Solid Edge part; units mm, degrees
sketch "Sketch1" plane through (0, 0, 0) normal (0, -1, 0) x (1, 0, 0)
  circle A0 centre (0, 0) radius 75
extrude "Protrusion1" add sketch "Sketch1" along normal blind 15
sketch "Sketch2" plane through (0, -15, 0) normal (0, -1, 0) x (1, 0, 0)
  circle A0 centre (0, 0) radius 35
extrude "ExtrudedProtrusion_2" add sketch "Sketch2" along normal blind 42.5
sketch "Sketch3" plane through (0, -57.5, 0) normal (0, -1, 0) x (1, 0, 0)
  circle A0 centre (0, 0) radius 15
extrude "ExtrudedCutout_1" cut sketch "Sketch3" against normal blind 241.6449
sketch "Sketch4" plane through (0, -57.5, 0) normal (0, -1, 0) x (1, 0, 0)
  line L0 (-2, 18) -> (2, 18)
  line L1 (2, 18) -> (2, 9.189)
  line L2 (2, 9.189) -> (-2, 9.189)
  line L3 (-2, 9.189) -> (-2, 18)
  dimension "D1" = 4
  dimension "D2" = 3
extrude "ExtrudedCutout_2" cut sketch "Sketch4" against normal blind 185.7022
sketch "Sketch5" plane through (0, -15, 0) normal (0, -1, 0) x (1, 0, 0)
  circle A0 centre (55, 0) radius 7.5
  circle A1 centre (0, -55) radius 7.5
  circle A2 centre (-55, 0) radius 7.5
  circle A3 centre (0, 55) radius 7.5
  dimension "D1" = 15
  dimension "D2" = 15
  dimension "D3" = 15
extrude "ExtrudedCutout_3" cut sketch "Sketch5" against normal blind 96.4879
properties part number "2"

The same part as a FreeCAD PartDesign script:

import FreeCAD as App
import Part
import Sketcher

V = App.Vector
Q = App.Units.Quantity


def add_polygon(sketch, points):
    """Adds a closed chain of lines whose ends are joined by coincident constraints."""
    first, n = sketch.GeometryCount, len(points)
    for a, b in zip(points, points[1:] + points[:1]):
        sketch.addGeometry(Part.LineSegment(App.Vector(*a, 0), App.Vector(*b, 0)), False)
    for i in range(n):
        sketch.addConstraint(Sketcher.Constraint("Coincident", first + i, 2, first + (i + 1) % n, 1))

doc = App.newDocument("Part")
params = doc.addObject("Spreadsheet::Sheet", "Params")
for row, (alias, value) in enumerate([
    ("sketch1_diameter", "150 mm"),
    ("pad1_length", "15 mm"),
    ("sketch2_diameter", "70 mm"),
    ("pad2_length", "42.5 mm"),
    ("sketch3_diameter", "30 mm"),
    ("pocket1_length", "241.6449 mm"),
    ("pocket2_length", "185.7022 mm"),
    ("sketch5_diameter", "15 mm"),
    ("pocket3_length", "96.4879 mm"),
], start=1):
    params.set(f"A{row}", alias)
    params.set(f"B{row}", "=" + value)
    params.setAlias(f"B{row}", alias)

body = doc.addObject("PartDesign::Body", "Body")

# Sketch on XZ plane
sketch1 = doc.addObject("Sketcher::SketchObject", "Sketch")
body.addObject(sketch1)
sketch1.AttachmentSupport = (doc.XZ_Plane, [""])
sketch1.MapMode = "FlatFace"
sketch1.addGeometry(Part.Circle(V(0, 0, 0), V(0, 0, 1), 75), False)
sketch1.addConstraint([
    Sketcher.Constraint("Coincident", 0, 3, -1, 1),
    Sketcher.Constraint("Diameter", 0, Q("150 mm")),
])
sketch1.setExpression("Constraints[1]", "Params.sketch1_diameter")
pad1 = doc.addObject("PartDesign::Pad", "Pad")
body.addObject(pad1)
pad1.Profile = sketch1
pad1.setExpression("Length", "Params.pad1_length")

# Sketch on XZ plane
sketch2 = doc.addObject("Sketcher::SketchObject", "Sketch001")
body.addObject(sketch2)
sketch2.AttachmentSupport = (doc.XZ_Plane, [""])
sketch2.MapMode = "FlatFace"
sketch2.AttachmentOffset = App.Placement(V(0, 0, 15), App.Rotation())
sketch2.addGeometry(Part.Circle(V(0, 0, 0), V(0, 0, 1), 35), False)
sketch2.addConstraint([
    Sketcher.Constraint("Coincident", 0, 3, -1, 1),
    Sketcher.Constraint("Diameter", 0, Q("70 mm")),
])
sketch2.setExpression("Constraints[1]", "Params.sketch2_diameter")
pad2 = doc.addObject("PartDesign::Pad", "Pad001")
body.addObject(pad2)
pad2.Profile = sketch2
pad2.setExpression("Length", "Params.pad2_length")

# Sketch on XZ plane
sketch3 = doc.addObject("Sketcher::SketchObject", "Sketch002")
body.addObject(sketch3)
sketch3.AttachmentSupport = (doc.XZ_Plane, [""])
sketch3.MapMode = "FlatFace"
sketch3.AttachmentOffset = App.Placement(V(0, 0, 57.5), App.Rotation())
sketch3.addGeometry(Part.Circle(V(0, 0, 0), V(0, 0, 1), 15), False)
sketch3.addConstraint([
    Sketcher.Constraint("Coincident", 0, 3, -1, 1),
    Sketcher.Constraint("Diameter", 0, Q("30 mm")),
])
sketch3.setExpression("Constraints[1]", "Params.sketch3_diameter")
pocket1 = doc.addObject("PartDesign::Pocket", "Pocket")
body.addObject(pocket1)
pocket1.Profile = sketch3
pocket1.setExpression("Length", "Params.pocket1_length")

# Sketch on XZ plane
sketch4 = doc.addObject("Sketcher::SketchObject", "Sketch003")
body.addObject(sketch4)
sketch4.AttachmentSupport = (doc.XZ_Plane, [""])
sketch4.MapMode = "FlatFace"
sketch4.AttachmentOffset = App.Placement(V(0, 0, 57.5), App.Rotation())
add_polygon(sketch4, [(2, 18), (-2, 18), (-2, 9.189), (2, 9.189)])  # lines 0-3
sketch4.addConstraint([
    Sketcher.Constraint("Horizontal", 0),
    Sketcher.Constraint("Vertical", 1),
    Sketcher.Constraint("Horizontal", 2),
    Sketcher.Constraint("Vertical", 3),
    Sketcher.Constraint("DistanceX", 0, 2, -1, 1, Q("2 mm")),
    Sketcher.Constraint("DistanceX", -1, 1, 2, 2, Q("2 mm")),
    Sketcher.Constraint("DistanceY", -1, 1, 0, 2, Q("18 mm")),
    Sketcher.Constraint("DistanceY", 1, 2, 1, 1, Q("8.811 mm")),
])
pocket2 = doc.addObject("PartDesign::Pocket", "Pocket001")
body.addObject(pocket2)
pocket2.Profile = sketch4
pocket2.setExpression("Length", "Params.pocket2_length")

# Sketch on XZ plane
sketch5 = doc.addObject("Sketcher::SketchObject", "Sketch004")
body.addObject(sketch5)
sketch5.AttachmentSupport = (doc.XZ_Plane, [""])
sketch5.MapMode = "FlatFace"
sketch5.AttachmentOffset = App.Placement(V(0, 0, 15), App.Rotation())
sketch5.addGeometry([
    Part.Circle(V(55, 0, 0), V(0, 0, 1), 7.5),
    Part.Circle(V(0, -55, 0), V(0, 0, 1), 7.5),
    Part.Circle(V(-55, 0, 0), V(0, 0, 1), 7.5),
    Part.Circle(V(0, 55, 0), V(0, 0, 1), 7.5),
], False)
sketch5.addConstraint([
    Sketcher.Constraint("Equal", 0, 1),
    Sketcher.Constraint("Equal", 1, 2),
    Sketcher.Constraint("Equal", 2, 3),
    Sketcher.Constraint("Symmetric", 0, 3, 2, 3, -1, 1),
    Sketcher.Constraint("Symmetric", 1, 3, 3, 3, -1, 1),
    Sketcher.Constraint("PointOnObject", 0, 3, -1),
    Sketcher.Constraint("PointOnObject", 1, 3, -2),
    Sketcher.Constraint("Diameter", 0, Q("15 mm")),
    Sketcher.Constraint("DistanceX", -1, 1, 0, 3, Q("55 mm")),
    Sketcher.Constraint("DistanceY", 1, 3, -1, 1, Q("55 mm")),
])
sketch5.setExpression("Constraints[7]", "Params.sketch5_diameter")
pocket3 = doc.addObject("PartDesign::Pocket", "Pocket002")
body.addObject(pocket3)
pocket3.Profile = sketch5
pocket3.setExpression("Length", "Params.pocket3_length")

doc.recompute()
